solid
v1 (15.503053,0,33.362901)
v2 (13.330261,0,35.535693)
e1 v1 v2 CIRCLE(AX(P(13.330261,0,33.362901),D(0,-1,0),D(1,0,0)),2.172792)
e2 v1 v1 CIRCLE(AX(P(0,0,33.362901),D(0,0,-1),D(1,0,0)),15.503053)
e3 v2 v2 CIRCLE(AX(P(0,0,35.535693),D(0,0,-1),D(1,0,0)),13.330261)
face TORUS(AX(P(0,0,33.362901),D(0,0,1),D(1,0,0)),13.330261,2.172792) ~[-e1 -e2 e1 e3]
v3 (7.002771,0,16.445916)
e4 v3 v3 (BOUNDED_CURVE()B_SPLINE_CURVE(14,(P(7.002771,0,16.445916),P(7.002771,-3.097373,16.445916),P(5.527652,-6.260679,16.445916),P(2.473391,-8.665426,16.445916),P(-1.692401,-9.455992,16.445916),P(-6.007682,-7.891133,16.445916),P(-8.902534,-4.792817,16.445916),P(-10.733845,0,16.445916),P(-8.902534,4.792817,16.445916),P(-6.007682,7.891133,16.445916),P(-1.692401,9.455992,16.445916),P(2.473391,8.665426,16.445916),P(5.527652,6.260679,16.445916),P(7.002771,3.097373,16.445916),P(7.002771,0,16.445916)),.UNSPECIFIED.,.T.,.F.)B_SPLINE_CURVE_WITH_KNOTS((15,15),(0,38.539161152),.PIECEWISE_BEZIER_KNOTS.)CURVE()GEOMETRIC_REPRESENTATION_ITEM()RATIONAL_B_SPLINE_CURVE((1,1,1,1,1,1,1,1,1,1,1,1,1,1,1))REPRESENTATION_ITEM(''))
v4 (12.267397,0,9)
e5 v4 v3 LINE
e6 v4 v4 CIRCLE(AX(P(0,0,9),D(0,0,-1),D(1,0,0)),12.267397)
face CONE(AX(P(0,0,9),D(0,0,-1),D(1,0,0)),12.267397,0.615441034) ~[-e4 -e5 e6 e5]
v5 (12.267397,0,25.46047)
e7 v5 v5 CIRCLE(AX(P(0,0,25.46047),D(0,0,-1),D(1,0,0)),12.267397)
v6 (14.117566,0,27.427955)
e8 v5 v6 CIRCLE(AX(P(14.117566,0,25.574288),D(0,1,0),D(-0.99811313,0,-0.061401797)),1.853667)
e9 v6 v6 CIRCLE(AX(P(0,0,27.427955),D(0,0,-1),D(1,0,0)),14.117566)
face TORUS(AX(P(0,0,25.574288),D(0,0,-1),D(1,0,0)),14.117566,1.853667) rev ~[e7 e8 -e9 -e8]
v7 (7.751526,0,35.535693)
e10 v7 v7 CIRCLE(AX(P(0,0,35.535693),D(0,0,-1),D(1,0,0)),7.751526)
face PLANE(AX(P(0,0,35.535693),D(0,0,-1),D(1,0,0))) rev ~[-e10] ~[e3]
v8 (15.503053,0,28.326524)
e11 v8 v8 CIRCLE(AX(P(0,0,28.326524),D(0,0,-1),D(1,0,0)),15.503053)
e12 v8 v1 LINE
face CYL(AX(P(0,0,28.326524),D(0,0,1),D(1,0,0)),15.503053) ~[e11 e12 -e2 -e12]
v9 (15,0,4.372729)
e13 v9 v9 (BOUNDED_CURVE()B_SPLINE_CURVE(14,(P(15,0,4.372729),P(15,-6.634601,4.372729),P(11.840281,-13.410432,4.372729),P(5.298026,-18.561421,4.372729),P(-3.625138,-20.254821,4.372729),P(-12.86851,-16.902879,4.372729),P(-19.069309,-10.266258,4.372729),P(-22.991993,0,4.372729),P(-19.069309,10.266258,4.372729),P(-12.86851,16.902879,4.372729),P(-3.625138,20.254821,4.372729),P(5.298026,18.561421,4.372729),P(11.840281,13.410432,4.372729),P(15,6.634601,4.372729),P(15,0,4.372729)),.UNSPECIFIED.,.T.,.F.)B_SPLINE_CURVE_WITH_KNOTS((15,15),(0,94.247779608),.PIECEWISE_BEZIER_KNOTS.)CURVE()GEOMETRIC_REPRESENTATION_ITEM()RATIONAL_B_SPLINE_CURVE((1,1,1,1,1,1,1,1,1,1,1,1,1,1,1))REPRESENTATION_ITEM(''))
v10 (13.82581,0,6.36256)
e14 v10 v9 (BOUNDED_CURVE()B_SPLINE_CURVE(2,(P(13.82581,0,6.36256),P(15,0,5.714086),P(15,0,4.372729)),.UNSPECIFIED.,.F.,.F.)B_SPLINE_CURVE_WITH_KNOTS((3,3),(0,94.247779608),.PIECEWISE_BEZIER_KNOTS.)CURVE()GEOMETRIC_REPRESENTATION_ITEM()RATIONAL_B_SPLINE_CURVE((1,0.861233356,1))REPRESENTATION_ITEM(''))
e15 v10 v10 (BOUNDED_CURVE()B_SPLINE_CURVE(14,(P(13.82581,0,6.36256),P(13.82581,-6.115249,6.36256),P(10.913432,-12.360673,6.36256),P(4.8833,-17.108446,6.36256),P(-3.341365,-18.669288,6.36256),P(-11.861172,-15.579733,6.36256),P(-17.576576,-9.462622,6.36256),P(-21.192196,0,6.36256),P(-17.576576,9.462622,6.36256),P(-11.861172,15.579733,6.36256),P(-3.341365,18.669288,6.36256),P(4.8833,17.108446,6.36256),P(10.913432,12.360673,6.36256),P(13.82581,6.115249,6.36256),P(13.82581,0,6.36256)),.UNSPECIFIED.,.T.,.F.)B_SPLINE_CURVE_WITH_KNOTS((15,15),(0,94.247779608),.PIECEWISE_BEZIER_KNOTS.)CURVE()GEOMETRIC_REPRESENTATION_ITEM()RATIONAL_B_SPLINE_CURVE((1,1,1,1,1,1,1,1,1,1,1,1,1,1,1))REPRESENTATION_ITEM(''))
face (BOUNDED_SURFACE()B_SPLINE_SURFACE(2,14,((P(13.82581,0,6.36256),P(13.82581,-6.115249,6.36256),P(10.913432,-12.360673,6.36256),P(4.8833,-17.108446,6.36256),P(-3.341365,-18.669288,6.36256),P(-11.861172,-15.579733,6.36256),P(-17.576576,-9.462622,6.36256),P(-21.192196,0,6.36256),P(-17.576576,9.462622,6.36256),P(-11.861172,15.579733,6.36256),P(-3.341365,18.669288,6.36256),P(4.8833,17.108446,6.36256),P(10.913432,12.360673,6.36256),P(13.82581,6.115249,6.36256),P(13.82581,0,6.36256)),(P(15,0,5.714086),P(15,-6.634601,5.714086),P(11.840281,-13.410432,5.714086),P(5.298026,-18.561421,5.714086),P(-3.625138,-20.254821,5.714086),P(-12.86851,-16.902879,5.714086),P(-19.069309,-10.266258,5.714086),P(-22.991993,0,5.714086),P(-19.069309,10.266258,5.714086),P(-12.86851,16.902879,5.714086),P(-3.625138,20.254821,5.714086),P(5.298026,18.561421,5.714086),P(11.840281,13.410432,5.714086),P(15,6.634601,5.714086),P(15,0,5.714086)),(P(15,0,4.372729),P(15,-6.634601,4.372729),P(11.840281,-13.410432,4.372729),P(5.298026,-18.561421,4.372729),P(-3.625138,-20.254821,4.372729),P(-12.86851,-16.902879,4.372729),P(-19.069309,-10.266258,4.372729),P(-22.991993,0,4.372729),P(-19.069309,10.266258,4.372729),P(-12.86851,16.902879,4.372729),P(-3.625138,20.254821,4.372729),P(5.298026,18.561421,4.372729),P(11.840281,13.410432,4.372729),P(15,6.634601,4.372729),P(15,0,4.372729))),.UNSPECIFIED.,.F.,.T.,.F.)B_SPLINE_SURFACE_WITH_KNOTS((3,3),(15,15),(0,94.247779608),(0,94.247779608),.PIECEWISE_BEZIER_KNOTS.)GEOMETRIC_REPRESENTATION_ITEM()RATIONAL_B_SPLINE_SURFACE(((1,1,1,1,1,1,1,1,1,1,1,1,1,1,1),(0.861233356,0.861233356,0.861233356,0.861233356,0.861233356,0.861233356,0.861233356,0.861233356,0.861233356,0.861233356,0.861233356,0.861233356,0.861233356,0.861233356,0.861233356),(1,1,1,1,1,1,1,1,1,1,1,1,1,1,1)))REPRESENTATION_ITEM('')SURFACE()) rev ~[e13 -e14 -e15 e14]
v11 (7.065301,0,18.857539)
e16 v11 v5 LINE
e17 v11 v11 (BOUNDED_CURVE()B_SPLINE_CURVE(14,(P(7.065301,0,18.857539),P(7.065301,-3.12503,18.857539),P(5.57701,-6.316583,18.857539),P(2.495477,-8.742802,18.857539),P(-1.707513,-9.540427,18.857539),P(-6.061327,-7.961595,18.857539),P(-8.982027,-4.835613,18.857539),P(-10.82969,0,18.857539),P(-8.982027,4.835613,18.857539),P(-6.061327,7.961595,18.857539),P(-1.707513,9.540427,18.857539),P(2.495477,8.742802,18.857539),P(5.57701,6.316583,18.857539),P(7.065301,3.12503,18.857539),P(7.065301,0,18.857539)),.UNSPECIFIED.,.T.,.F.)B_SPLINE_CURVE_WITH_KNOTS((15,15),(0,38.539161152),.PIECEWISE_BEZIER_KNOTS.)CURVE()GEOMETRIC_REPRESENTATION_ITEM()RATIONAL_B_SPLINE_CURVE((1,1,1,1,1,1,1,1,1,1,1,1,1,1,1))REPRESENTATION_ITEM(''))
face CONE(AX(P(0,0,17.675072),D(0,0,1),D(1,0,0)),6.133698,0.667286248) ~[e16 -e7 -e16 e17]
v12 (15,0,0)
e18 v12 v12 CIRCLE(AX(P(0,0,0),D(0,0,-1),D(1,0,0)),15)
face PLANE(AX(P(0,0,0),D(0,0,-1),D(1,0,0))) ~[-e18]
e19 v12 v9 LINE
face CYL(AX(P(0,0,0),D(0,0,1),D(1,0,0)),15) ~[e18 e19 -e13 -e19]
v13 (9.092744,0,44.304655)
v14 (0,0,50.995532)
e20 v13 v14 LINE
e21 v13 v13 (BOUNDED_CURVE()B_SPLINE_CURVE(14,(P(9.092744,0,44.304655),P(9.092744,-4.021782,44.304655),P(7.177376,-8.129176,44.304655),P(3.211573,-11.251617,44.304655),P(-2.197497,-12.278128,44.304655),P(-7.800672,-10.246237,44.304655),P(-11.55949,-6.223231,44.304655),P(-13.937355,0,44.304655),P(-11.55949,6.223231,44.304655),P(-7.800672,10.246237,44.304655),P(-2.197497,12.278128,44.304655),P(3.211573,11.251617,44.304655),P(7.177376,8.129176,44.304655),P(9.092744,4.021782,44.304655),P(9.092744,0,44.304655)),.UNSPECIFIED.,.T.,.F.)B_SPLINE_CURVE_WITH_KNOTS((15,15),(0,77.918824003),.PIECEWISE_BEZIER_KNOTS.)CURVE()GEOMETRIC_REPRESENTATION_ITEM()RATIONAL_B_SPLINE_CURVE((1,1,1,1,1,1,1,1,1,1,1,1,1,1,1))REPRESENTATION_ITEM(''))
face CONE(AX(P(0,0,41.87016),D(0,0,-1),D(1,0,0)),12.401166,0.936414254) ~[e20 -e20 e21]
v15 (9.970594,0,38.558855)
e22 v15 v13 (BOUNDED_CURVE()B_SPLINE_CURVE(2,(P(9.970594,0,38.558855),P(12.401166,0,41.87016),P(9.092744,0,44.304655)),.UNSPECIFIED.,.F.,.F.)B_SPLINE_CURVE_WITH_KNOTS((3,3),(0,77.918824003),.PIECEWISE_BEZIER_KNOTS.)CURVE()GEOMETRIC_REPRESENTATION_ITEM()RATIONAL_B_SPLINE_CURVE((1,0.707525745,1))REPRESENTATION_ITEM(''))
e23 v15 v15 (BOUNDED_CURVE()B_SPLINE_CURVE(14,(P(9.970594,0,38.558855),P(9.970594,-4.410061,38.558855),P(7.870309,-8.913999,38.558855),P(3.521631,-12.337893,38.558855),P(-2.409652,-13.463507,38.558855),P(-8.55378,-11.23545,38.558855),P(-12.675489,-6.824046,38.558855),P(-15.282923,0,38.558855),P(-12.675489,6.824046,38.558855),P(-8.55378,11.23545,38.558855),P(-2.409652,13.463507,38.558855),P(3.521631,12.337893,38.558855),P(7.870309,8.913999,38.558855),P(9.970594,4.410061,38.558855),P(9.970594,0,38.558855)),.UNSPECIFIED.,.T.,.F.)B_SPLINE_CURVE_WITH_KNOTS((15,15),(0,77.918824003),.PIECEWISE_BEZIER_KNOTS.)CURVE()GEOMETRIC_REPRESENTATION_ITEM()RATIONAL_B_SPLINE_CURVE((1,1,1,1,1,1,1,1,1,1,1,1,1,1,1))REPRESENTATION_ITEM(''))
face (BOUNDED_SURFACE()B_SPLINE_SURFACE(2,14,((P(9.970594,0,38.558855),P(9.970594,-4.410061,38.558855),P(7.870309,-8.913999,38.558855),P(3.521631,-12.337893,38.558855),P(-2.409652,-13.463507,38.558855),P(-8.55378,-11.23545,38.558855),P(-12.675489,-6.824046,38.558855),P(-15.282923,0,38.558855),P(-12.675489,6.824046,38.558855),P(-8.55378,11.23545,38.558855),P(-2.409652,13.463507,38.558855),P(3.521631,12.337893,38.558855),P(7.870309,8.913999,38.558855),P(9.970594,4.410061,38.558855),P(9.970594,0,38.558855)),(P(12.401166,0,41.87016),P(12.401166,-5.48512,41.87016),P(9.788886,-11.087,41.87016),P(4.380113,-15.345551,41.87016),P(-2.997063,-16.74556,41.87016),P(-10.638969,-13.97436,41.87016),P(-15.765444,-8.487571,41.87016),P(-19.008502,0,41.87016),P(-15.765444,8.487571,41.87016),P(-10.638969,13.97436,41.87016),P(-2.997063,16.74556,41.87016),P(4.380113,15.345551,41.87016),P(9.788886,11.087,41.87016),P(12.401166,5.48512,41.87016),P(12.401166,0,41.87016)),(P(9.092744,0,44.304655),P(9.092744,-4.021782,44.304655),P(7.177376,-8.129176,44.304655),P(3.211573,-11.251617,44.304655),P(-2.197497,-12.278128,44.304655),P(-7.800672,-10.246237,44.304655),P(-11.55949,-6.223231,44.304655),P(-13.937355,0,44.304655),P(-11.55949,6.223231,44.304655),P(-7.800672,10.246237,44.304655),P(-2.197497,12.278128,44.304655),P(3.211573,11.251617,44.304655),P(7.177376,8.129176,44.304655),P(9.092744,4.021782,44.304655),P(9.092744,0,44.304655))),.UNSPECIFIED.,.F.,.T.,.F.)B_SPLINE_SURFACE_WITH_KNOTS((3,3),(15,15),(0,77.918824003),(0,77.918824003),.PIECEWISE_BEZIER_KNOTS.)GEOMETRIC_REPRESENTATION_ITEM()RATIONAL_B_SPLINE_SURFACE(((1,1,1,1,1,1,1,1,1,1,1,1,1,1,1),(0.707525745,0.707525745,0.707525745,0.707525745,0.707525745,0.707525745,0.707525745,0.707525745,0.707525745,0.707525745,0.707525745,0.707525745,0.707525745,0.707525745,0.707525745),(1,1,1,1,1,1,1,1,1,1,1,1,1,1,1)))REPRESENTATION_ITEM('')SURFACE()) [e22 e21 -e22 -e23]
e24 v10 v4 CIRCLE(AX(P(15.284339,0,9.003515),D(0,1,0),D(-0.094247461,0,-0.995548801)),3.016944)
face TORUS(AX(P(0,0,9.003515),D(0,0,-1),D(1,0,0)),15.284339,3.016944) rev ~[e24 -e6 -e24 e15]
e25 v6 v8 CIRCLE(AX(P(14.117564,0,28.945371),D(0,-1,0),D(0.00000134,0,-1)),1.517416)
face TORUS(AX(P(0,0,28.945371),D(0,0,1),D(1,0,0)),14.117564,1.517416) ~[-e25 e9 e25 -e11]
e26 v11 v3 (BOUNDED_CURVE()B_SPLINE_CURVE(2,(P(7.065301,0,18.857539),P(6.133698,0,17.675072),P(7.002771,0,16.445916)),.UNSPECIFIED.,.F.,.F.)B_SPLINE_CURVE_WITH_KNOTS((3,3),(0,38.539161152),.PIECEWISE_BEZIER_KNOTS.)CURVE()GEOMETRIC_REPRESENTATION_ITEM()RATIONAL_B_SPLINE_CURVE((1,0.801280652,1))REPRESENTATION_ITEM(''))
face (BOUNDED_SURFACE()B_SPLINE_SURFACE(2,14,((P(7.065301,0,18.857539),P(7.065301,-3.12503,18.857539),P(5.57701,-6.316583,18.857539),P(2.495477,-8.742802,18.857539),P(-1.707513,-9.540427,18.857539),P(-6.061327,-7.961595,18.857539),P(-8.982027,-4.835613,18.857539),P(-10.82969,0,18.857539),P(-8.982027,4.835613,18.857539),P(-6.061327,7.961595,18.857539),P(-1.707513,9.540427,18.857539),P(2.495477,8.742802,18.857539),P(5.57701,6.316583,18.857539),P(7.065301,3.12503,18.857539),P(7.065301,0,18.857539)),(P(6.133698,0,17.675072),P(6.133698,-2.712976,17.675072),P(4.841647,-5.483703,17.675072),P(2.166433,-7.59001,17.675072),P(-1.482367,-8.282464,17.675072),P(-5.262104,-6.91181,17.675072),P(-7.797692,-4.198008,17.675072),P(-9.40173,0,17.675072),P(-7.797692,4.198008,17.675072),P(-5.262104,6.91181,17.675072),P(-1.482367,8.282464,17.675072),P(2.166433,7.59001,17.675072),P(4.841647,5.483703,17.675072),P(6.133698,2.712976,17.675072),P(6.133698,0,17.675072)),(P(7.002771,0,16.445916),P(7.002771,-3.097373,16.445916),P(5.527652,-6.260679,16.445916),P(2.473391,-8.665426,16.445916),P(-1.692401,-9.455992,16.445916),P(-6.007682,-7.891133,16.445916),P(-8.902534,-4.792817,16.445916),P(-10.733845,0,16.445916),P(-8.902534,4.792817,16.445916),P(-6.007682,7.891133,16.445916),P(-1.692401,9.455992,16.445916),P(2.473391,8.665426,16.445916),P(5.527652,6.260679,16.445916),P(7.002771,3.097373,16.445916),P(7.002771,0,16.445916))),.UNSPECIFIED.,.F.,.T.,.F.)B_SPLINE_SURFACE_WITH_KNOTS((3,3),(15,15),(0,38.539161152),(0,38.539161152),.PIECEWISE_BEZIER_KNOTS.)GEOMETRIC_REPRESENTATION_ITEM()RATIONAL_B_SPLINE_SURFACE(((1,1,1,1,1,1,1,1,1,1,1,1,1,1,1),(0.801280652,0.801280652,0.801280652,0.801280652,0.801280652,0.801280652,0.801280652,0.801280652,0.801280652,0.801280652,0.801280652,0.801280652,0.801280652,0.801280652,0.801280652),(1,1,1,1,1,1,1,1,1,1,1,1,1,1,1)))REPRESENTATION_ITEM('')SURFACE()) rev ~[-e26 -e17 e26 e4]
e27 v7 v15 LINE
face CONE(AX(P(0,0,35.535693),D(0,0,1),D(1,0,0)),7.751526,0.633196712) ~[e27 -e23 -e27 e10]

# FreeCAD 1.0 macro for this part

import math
import FreeCAD as App
import Part
import Sketcher
from FreeCAD import Vector


def edges_at(feature, points):
    """Names of the edges that pass closest to the given points."""
    edges = feature.Shape.Edges
    near = lambda p: min(range(len(edges)), key=lambda i: edges[i].distToShape(Part.Vertex(*p))[0])
    return sorted({f"Edge{near(p) + 1}" for p in points})

doc = App.newDocument("Part")
params = doc.addObject("Spreadsheet::Sheet", "Params")
for row, (alias, value) in enumerate([
    ("sketch1_width", "15 mm"),
    ("sketch1_height", "6 mm"),
    ("revolution_angle", "360 deg"),
    ("fillet_radius", "2.172792 mm"),
    ("fillet2_radius", "2.016112 mm"),
    ("fillet3_radius", "2.27312 mm"),
    ("fillet4_radius", "4.112477 mm"),
], start=1):
    params.set(f"A{row}", alias)
    params.set(f"B{row}", "=" + value)
    params.setAlias(f"B{row}", alias)

body = doc.addObject("PartDesign::Body", "Body")

# Sketch on XZ plane
sketch1 = body.newObject("Sketcher::SketchObject", "Sketch")
sketch1.AttachmentSupport = (doc.getObject("XZ_Plane"), [""])
sketch1.MapMode = "FlatFace"
sketch1.addGeometry(Part.LineSegment(Vector(0, 51, 0), Vector(0, 0, 0)), False)
sketch1.addGeometry(Part.LineSegment(Vector(0, 0, 0), Vector(15, 0, 0)), False)
sketch1.addGeometry(Part.LineSegment(Vector(15, 0, 0), Vector(15, 6, 0)), False)
sketch1.addGeometry(Part.ArcOfCircle(Part.Circle(Vector(15.3, 9, 0), Vector(0, 0, 1), 3), math.radians(-180), math.radians(-95)), False)
sketch1.addGeometry(Part.LineSegment(Vector(12.3, 9, 0), Vector(6.1, 17.7, 0)), False)
sketch1.addGeometry(Part.LineSegment(Vector(6.1, 17.7, 0), Vector(12.3, 25.5, 0)), False)
sketch1.addGeometry(Part.ArcOfCircle(Part.Circle(Vector(14.1, 25.6, 0), Vector(0, 0, 1), 1.9), math.radians(90), math.radians(184)), False)
sketch1.addGeometry(Part.ArcOfCircle(Part.Circle(Vector(14.1, 28.9, 0), Vector(0, 0, 1), 1.5), math.radians(-90), math.radians(-24)), False)
sketch1.addGeometry(Part.LineSegment(Vector(15.5, 28.3, 0), Vector(15.5, 35.5, 0)), False)
sketch1.addGeometry(Part.LineSegment(Vector(15.5, 35.5, 0), Vector(7.8, 35.5, 0)), False)
sketch1.addGeometry(Part.LineSegment(Vector(7.8, 35.5, 0), Vector(12.4, 41.9, 0)), False)
sketch1.addGeometry(Part.LineSegment(Vector(12.4, 41.9, 0), Vector(0, 51, 0)), False)
sketch1.addConstraint(Sketcher.Constraint("Coincident", 0, 2, 1, 1))
sketch1.addConstraint(Sketcher.Constraint("Coincident", 1, 2, 2, 1))
sketch1.addConstraint(Sketcher.Constraint("Coincident", 2, 2, 3, 2))
sketch1.addConstraint(Sketcher.Constraint("Coincident", 3, 1, 4, 1))
sketch1.addConstraint(Sketcher.Constraint("Coincident", 4, 2, 5, 1))
sketch1.addConstraint(Sketcher.Constraint("Coincident", 5, 2, 6, 2))
sketch1.addConstraint(Sketcher.Constraint("Tangent", 6, 1, 7, 1))
sketch1.addConstraint(Sketcher.Constraint("Coincident", 7, 2, 8, 1))
sketch1.addConstraint(Sketcher.Constraint("Coincident", 8, 2, 9, 1))
sketch1.addConstraint(Sketcher.Constraint("Coincident", 9, 2, 10, 1))
sketch1.addConstraint(Sketcher.Constraint("Coincident", 10, 2, 11, 1))
sketch1.addConstraint(Sketcher.Constraint("Coincident", 11, 2, 0, 1))
sketch1.addConstraint(Sketcher.Constraint("Vertical", 0))
sketch1.addConstraint(Sketcher.Constraint("Horizontal", 1))
sketch1.addConstraint(Sketcher.Constraint("Vertical", 2))
sketch1.addConstraint(Sketcher.Constraint("Vertical", 8))
sketch1.addConstraint(Sketcher.Constraint("Horizontal", 9))
sketch1.addConstraint(Sketcher.Constraint("Coincident", 0, 2, -1, 1))
sketch1.addConstraint(Sketcher.Constraint("Vertical", 6, 3, 7, 3))
sketch1.addConstraint(Sketcher.Constraint("Vertical", 3, 1, 5, 2))
sketch1.addConstraint(Sketcher.Constraint("DistanceX", 1, 1, 1, 2, 15.0))
sketch1.addConstraint(Sketcher.Constraint("DistanceY", 2, 1, 2, 2, 6.0))
sketch1.addConstraint(Sketcher.Constraint("DistanceY", -1, 1, 3, 1, 9.0))
sketch1.addConstraint(Sketcher.Constraint("Radius", 3, 3.016944))
sketch1.addConstraint(Sketcher.Constraint("Radius", 6, 1.853667))
sketch1.addConstraint(Sketcher.Constraint("Radius", 7, 1.517416))
sketch1.addConstraint(Sketcher.Constraint("DistanceY", 0, 2, 0, 1, 50.995532))
sketch1.addConstraint(Sketcher.Constraint("DistanceY", 8, 1, 8, 2, 7.209169))
sketch1.addConstraint(Sketcher.Constraint("DistanceX", 4, 2, 3, 1, 6.133699))
sketch1.addConstraint(Sketcher.Constraint("DistanceY", 4, 2, 7, 3, 11.270299))
sketch1.addConstraint(Sketcher.Constraint("DistanceY", 5, 2, 7, 3, 3.484901))
sketch1.addConstraint(Sketcher.Constraint("DistanceX", 10, 2, 6, 1, 1.7164))
sketch1.addConstraint(Sketcher.Constraint("Distance", 4, 10.624459))
sketch1.addConstraint(Sketcher.Constraint("DistanceX", 9, 2, 9, 1, 7.751527))
sketch1.addConstraint(Sketcher.Constraint("DistanceX", -1, 1, 3, 3, 15.284339))
sketch1.addConstraint(Sketcher.Constraint("DistanceY", -1, 1, 10, 2, 41.87016))
sketch1.addConstraint(Sketcher.Constraint("DistanceX", 7, 3, 7, 2, 1.385489))
sketch1.setExpression("Constraints[20]", "Params.sketch1_width")
sketch1.setExpression("Constraints[21]", "Params.sketch1_height")
revolution = body.newObject("PartDesign::Revolution", "Revolution")
revolution.Profile = sketch1
revolution.ReferenceAxis = (sketch1, ["V_Axis"])
revolution.setExpression("Angle", "Params.revolution_angle")
doc.recompute()

fillet = body.newObject("PartDesign::Fillet", "Fillet")
fillet.Base = (revolution, edges_at(revolution, [(-15.503, 0, 35.536)]))
fillet.setExpression("Radius", "Params.fillet_radius")
doc.recompute()

fillet2 = body.newObject("PartDesign::Fillet", "Fillet001")
fillet2.Base = (fillet, edges_at(fillet, [(-6.134, 0, 17.675)]))
fillet2.setExpression("Radius", "Params.fillet2_radius")
doc.recompute()

fillet3 = body.newObject("PartDesign::Fillet", "Fillet002")
fillet3.Base = (fillet2, edges_at(fillet2, [(-15, 0, 6)]))
fillet3.setExpression("Radius", "Params.fillet3_radius")
doc.recompute()

fillet4 = body.newObject("PartDesign::Fillet", "Fillet003")
fillet4.Base = (fillet3, edges_at(fillet3, [(-12.401, 0, 41.87)]))
fillet4.setExpression("Radius", "Params.fillet4_radius")

doc.recompute()
